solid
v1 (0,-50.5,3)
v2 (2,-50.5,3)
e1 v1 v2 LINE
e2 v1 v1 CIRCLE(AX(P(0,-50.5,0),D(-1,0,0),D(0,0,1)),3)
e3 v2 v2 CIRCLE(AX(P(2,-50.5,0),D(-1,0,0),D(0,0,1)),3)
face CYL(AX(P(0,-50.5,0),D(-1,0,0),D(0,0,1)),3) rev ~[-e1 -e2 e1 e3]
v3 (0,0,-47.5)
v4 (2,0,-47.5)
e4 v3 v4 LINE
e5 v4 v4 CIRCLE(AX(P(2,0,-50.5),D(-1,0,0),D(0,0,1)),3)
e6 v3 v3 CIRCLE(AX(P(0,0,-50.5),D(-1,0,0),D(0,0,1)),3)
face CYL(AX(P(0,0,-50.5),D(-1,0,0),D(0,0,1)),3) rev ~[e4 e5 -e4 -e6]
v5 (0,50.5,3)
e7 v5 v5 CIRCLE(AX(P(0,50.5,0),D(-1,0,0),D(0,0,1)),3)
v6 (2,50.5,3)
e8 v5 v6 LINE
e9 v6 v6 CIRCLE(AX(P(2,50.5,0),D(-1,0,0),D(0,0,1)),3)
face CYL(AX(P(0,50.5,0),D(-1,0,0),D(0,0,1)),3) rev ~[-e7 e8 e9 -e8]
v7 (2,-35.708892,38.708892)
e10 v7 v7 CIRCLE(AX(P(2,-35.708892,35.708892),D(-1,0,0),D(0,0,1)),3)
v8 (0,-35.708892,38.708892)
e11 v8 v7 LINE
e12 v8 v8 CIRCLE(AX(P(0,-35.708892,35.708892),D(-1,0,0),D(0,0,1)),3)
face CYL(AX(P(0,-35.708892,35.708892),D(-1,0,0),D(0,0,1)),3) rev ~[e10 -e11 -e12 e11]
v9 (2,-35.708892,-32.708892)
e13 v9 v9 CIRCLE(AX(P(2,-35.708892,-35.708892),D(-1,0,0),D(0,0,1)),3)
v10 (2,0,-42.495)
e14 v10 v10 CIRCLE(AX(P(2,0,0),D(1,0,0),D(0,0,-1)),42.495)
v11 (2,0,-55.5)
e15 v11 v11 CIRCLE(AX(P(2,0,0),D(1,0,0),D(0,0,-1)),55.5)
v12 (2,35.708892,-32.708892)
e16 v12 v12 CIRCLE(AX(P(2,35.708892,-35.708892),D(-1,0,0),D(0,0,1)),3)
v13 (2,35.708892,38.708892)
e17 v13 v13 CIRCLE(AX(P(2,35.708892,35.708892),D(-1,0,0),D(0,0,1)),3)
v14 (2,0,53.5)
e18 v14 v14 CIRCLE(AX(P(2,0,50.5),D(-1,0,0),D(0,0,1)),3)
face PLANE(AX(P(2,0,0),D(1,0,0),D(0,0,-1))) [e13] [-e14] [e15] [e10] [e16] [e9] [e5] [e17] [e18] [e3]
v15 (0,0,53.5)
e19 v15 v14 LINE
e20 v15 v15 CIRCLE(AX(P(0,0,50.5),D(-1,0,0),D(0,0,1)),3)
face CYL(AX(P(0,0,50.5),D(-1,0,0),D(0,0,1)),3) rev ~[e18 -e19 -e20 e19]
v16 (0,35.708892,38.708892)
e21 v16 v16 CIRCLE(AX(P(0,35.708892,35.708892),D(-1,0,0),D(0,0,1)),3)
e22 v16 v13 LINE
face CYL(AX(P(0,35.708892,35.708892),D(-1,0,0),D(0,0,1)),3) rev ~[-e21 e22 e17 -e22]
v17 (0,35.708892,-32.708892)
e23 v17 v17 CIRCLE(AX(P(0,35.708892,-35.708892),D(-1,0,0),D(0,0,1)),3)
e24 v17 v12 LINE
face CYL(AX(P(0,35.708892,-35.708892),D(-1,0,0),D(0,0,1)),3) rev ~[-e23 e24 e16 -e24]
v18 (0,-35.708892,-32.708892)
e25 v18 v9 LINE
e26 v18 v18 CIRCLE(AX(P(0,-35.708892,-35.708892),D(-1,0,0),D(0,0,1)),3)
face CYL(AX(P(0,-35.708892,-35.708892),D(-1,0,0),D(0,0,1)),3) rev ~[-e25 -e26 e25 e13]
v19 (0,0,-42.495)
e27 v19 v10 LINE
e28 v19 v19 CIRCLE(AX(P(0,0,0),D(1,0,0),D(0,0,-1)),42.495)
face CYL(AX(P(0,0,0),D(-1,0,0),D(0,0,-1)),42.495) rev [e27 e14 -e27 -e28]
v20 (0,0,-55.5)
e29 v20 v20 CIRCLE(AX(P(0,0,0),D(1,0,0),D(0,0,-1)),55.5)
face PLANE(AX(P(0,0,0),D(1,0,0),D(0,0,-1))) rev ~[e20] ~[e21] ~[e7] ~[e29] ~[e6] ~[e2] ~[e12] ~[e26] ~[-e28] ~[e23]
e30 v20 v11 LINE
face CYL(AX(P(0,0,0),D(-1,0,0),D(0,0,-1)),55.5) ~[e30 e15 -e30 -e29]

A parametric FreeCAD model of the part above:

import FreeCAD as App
import Part
import Sketcher
from FreeCAD import Vector

doc = App.newDocument("Part")
params = doc.addObject("Spreadsheet::Sheet", "Params")
for row, (alias, value) in enumerate([
    ("sketch1_diameter", "111 mm"),
    ("sketch1_diameter2", "84.99 mm"),
    ("pad1_length", "2 mm"),
    ("sketch2_diameter", "6 mm"),
    ("pocket1_length", "15 mm"),
], start=1):
    params.set(f"A{row}", alias)
    params.set(f"B{row}", "=" + value)
    params.setAlias(f"B{row}", alias)

body = doc.addObject("PartDesign::Body", "Body")

# Sketch on YZ plane
sketch1 = body.newObject("Sketcher::SketchObject", "Sketch")
sketch1.AttachmentSupport = (doc.getObject("YZ_Plane"), [""])
sketch1.MapMode = "FlatFace"
sketch1.addGeometry(Part.Circle(Vector(0, 0, 0), Vector(0, 0, 1), 56), False)
sketch1.addGeometry(Part.Circle(Vector(0, 0, 0), Vector(0, 0, 1), 42), False)
sketch1.addConstraint(Sketcher.Constraint("Coincident", 0, 3, -1, 1))
sketch1.addConstraint(Sketcher.Constraint("Coincident", 1, 3, -1, 1))
sketch1.addConstraint(Sketcher.Constraint("Diameter", 0, 111.0))
sketch1.addConstraint(Sketcher.Constraint("Diameter", 1, 84.99))
sketch1.setExpression("Constraints[2]", "Params.sketch1_diameter")
sketch1.setExpression("Constraints[3]", "Params.sketch1_diameter2")
pad1 = body.newObject("PartDesign::Pad", "Pad")
pad1.Profile = sketch1
pad1.setExpression("Length", "Params.pad1_length")

# Sketch on YZ plane
sketch2 = body.newObject("Sketcher::SketchObject", "Sketch001")
sketch2.AttachmentSupport = (doc.getObject("YZ_Plane"), [""])
sketch2.MapMode = "FlatFace"
sketch2.addGeometry(Part.Circle(Vector(50.5, 0, 0), Vector(0, 0, 1), 3), False)
sketch2.addGeometry(Part.Circle(Vector(35.7, 35.7, 0), Vector(0, 0, 1), 3), False)
sketch2.addGeometry(Part.Circle(Vector(0, 50.5, 0), Vector(0, 0, 1), 3), False)
sketch2.addGeometry(Part.Circle(Vector(-35.7, 35.7, 0), Vector(0, 0, 1), 3), False)
sketch2.addGeometry(Part.Circle(Vector(-50.5, 0, 0), Vector(0, 0, 1), 3), False)
sketch2.addGeometry(Part.Circle(Vector(-35.7, -35.7, 0), Vector(0, 0, 1), 3), False)
sketch2.addGeometry(Part.Circle(Vector(0, -50.5, 0), Vector(0, 0, 1), 3), False)
sketch2.addGeometry(Part.Circle(Vector(35.7, -35.7, 0), Vector(0, 0, 1), 3), False)
sketch2.addConstraint(Sketcher.Constraint("Equal", 0, 1))
sketch2.addConstraint(Sketcher.Constraint("Equal", 1, 2))
sketch2.addConstraint(Sketcher.Constraint("Equal", 2, 3))
sketch2.addConstraint(Sketcher.Constraint("Equal", 3, 4))
sketch2.addConstraint(Sketcher.Constraint("Equal", 4, 5))
sketch2.addConstraint(Sketcher.Constraint("Equal", 5, 6))
sketch2.addConstraint(Sketcher.Constraint("Equal", 6, 7))
sketch2.addConstraint(Sketcher.Constraint("Symmetric", 0, 3, 4, 3, -1, 1))
sketch2.addConstraint(Sketcher.Constraint("Symmetric", 1, 3, 5, 3, -1, 1))
sketch2.addConstraint(Sketcher.Constraint("Symmetric", 2, 3, 6, 3, -1, 1))
sketch2.addConstraint(Sketcher.Constraint("Symmetric", 3, 3, 7, 3, -1, 1))
sketch2.addConstraint(Sketcher.Constraint("Symmetric", 1, 3, 3, 3, -2))
sketch2.addConstraint(Sketcher.Constraint("PointOnObject", 0, 3, -1))
sketch2.addConstraint(Sketcher.Constraint("PointOnObject", 2, 3, -2))
sketch2.addConstraint(Sketcher.Constraint("Diameter", 0, 6.0))
sketch2.addConstraint(Sketcher.Constraint("DistanceX", 4, 3, 0, 3, 101.0))
sketch2.addConstraint(Sketcher.Constraint("DistanceY", -1, 1, 2, 3, 50.5))
sketch2.addConstraint(Sketcher.Constraint("DistanceX", -1, 1, 1, 3, 35.708892))
sketch2.addConstraint(Sketcher.Constraint("DistanceY", -1, 1, 1, 3, 35.708892))
sketch2.setExpression("Constraints[14]", "Params.sketch2_diameter")
pocket1 = body.newObject("PartDesign::Pocket", "Pocket")
pocket1.Profile = sketch2
pocket1.setExpression("Length", "Params.pocket1_length")
pocket1.Reversed = True

doc.recompute()
